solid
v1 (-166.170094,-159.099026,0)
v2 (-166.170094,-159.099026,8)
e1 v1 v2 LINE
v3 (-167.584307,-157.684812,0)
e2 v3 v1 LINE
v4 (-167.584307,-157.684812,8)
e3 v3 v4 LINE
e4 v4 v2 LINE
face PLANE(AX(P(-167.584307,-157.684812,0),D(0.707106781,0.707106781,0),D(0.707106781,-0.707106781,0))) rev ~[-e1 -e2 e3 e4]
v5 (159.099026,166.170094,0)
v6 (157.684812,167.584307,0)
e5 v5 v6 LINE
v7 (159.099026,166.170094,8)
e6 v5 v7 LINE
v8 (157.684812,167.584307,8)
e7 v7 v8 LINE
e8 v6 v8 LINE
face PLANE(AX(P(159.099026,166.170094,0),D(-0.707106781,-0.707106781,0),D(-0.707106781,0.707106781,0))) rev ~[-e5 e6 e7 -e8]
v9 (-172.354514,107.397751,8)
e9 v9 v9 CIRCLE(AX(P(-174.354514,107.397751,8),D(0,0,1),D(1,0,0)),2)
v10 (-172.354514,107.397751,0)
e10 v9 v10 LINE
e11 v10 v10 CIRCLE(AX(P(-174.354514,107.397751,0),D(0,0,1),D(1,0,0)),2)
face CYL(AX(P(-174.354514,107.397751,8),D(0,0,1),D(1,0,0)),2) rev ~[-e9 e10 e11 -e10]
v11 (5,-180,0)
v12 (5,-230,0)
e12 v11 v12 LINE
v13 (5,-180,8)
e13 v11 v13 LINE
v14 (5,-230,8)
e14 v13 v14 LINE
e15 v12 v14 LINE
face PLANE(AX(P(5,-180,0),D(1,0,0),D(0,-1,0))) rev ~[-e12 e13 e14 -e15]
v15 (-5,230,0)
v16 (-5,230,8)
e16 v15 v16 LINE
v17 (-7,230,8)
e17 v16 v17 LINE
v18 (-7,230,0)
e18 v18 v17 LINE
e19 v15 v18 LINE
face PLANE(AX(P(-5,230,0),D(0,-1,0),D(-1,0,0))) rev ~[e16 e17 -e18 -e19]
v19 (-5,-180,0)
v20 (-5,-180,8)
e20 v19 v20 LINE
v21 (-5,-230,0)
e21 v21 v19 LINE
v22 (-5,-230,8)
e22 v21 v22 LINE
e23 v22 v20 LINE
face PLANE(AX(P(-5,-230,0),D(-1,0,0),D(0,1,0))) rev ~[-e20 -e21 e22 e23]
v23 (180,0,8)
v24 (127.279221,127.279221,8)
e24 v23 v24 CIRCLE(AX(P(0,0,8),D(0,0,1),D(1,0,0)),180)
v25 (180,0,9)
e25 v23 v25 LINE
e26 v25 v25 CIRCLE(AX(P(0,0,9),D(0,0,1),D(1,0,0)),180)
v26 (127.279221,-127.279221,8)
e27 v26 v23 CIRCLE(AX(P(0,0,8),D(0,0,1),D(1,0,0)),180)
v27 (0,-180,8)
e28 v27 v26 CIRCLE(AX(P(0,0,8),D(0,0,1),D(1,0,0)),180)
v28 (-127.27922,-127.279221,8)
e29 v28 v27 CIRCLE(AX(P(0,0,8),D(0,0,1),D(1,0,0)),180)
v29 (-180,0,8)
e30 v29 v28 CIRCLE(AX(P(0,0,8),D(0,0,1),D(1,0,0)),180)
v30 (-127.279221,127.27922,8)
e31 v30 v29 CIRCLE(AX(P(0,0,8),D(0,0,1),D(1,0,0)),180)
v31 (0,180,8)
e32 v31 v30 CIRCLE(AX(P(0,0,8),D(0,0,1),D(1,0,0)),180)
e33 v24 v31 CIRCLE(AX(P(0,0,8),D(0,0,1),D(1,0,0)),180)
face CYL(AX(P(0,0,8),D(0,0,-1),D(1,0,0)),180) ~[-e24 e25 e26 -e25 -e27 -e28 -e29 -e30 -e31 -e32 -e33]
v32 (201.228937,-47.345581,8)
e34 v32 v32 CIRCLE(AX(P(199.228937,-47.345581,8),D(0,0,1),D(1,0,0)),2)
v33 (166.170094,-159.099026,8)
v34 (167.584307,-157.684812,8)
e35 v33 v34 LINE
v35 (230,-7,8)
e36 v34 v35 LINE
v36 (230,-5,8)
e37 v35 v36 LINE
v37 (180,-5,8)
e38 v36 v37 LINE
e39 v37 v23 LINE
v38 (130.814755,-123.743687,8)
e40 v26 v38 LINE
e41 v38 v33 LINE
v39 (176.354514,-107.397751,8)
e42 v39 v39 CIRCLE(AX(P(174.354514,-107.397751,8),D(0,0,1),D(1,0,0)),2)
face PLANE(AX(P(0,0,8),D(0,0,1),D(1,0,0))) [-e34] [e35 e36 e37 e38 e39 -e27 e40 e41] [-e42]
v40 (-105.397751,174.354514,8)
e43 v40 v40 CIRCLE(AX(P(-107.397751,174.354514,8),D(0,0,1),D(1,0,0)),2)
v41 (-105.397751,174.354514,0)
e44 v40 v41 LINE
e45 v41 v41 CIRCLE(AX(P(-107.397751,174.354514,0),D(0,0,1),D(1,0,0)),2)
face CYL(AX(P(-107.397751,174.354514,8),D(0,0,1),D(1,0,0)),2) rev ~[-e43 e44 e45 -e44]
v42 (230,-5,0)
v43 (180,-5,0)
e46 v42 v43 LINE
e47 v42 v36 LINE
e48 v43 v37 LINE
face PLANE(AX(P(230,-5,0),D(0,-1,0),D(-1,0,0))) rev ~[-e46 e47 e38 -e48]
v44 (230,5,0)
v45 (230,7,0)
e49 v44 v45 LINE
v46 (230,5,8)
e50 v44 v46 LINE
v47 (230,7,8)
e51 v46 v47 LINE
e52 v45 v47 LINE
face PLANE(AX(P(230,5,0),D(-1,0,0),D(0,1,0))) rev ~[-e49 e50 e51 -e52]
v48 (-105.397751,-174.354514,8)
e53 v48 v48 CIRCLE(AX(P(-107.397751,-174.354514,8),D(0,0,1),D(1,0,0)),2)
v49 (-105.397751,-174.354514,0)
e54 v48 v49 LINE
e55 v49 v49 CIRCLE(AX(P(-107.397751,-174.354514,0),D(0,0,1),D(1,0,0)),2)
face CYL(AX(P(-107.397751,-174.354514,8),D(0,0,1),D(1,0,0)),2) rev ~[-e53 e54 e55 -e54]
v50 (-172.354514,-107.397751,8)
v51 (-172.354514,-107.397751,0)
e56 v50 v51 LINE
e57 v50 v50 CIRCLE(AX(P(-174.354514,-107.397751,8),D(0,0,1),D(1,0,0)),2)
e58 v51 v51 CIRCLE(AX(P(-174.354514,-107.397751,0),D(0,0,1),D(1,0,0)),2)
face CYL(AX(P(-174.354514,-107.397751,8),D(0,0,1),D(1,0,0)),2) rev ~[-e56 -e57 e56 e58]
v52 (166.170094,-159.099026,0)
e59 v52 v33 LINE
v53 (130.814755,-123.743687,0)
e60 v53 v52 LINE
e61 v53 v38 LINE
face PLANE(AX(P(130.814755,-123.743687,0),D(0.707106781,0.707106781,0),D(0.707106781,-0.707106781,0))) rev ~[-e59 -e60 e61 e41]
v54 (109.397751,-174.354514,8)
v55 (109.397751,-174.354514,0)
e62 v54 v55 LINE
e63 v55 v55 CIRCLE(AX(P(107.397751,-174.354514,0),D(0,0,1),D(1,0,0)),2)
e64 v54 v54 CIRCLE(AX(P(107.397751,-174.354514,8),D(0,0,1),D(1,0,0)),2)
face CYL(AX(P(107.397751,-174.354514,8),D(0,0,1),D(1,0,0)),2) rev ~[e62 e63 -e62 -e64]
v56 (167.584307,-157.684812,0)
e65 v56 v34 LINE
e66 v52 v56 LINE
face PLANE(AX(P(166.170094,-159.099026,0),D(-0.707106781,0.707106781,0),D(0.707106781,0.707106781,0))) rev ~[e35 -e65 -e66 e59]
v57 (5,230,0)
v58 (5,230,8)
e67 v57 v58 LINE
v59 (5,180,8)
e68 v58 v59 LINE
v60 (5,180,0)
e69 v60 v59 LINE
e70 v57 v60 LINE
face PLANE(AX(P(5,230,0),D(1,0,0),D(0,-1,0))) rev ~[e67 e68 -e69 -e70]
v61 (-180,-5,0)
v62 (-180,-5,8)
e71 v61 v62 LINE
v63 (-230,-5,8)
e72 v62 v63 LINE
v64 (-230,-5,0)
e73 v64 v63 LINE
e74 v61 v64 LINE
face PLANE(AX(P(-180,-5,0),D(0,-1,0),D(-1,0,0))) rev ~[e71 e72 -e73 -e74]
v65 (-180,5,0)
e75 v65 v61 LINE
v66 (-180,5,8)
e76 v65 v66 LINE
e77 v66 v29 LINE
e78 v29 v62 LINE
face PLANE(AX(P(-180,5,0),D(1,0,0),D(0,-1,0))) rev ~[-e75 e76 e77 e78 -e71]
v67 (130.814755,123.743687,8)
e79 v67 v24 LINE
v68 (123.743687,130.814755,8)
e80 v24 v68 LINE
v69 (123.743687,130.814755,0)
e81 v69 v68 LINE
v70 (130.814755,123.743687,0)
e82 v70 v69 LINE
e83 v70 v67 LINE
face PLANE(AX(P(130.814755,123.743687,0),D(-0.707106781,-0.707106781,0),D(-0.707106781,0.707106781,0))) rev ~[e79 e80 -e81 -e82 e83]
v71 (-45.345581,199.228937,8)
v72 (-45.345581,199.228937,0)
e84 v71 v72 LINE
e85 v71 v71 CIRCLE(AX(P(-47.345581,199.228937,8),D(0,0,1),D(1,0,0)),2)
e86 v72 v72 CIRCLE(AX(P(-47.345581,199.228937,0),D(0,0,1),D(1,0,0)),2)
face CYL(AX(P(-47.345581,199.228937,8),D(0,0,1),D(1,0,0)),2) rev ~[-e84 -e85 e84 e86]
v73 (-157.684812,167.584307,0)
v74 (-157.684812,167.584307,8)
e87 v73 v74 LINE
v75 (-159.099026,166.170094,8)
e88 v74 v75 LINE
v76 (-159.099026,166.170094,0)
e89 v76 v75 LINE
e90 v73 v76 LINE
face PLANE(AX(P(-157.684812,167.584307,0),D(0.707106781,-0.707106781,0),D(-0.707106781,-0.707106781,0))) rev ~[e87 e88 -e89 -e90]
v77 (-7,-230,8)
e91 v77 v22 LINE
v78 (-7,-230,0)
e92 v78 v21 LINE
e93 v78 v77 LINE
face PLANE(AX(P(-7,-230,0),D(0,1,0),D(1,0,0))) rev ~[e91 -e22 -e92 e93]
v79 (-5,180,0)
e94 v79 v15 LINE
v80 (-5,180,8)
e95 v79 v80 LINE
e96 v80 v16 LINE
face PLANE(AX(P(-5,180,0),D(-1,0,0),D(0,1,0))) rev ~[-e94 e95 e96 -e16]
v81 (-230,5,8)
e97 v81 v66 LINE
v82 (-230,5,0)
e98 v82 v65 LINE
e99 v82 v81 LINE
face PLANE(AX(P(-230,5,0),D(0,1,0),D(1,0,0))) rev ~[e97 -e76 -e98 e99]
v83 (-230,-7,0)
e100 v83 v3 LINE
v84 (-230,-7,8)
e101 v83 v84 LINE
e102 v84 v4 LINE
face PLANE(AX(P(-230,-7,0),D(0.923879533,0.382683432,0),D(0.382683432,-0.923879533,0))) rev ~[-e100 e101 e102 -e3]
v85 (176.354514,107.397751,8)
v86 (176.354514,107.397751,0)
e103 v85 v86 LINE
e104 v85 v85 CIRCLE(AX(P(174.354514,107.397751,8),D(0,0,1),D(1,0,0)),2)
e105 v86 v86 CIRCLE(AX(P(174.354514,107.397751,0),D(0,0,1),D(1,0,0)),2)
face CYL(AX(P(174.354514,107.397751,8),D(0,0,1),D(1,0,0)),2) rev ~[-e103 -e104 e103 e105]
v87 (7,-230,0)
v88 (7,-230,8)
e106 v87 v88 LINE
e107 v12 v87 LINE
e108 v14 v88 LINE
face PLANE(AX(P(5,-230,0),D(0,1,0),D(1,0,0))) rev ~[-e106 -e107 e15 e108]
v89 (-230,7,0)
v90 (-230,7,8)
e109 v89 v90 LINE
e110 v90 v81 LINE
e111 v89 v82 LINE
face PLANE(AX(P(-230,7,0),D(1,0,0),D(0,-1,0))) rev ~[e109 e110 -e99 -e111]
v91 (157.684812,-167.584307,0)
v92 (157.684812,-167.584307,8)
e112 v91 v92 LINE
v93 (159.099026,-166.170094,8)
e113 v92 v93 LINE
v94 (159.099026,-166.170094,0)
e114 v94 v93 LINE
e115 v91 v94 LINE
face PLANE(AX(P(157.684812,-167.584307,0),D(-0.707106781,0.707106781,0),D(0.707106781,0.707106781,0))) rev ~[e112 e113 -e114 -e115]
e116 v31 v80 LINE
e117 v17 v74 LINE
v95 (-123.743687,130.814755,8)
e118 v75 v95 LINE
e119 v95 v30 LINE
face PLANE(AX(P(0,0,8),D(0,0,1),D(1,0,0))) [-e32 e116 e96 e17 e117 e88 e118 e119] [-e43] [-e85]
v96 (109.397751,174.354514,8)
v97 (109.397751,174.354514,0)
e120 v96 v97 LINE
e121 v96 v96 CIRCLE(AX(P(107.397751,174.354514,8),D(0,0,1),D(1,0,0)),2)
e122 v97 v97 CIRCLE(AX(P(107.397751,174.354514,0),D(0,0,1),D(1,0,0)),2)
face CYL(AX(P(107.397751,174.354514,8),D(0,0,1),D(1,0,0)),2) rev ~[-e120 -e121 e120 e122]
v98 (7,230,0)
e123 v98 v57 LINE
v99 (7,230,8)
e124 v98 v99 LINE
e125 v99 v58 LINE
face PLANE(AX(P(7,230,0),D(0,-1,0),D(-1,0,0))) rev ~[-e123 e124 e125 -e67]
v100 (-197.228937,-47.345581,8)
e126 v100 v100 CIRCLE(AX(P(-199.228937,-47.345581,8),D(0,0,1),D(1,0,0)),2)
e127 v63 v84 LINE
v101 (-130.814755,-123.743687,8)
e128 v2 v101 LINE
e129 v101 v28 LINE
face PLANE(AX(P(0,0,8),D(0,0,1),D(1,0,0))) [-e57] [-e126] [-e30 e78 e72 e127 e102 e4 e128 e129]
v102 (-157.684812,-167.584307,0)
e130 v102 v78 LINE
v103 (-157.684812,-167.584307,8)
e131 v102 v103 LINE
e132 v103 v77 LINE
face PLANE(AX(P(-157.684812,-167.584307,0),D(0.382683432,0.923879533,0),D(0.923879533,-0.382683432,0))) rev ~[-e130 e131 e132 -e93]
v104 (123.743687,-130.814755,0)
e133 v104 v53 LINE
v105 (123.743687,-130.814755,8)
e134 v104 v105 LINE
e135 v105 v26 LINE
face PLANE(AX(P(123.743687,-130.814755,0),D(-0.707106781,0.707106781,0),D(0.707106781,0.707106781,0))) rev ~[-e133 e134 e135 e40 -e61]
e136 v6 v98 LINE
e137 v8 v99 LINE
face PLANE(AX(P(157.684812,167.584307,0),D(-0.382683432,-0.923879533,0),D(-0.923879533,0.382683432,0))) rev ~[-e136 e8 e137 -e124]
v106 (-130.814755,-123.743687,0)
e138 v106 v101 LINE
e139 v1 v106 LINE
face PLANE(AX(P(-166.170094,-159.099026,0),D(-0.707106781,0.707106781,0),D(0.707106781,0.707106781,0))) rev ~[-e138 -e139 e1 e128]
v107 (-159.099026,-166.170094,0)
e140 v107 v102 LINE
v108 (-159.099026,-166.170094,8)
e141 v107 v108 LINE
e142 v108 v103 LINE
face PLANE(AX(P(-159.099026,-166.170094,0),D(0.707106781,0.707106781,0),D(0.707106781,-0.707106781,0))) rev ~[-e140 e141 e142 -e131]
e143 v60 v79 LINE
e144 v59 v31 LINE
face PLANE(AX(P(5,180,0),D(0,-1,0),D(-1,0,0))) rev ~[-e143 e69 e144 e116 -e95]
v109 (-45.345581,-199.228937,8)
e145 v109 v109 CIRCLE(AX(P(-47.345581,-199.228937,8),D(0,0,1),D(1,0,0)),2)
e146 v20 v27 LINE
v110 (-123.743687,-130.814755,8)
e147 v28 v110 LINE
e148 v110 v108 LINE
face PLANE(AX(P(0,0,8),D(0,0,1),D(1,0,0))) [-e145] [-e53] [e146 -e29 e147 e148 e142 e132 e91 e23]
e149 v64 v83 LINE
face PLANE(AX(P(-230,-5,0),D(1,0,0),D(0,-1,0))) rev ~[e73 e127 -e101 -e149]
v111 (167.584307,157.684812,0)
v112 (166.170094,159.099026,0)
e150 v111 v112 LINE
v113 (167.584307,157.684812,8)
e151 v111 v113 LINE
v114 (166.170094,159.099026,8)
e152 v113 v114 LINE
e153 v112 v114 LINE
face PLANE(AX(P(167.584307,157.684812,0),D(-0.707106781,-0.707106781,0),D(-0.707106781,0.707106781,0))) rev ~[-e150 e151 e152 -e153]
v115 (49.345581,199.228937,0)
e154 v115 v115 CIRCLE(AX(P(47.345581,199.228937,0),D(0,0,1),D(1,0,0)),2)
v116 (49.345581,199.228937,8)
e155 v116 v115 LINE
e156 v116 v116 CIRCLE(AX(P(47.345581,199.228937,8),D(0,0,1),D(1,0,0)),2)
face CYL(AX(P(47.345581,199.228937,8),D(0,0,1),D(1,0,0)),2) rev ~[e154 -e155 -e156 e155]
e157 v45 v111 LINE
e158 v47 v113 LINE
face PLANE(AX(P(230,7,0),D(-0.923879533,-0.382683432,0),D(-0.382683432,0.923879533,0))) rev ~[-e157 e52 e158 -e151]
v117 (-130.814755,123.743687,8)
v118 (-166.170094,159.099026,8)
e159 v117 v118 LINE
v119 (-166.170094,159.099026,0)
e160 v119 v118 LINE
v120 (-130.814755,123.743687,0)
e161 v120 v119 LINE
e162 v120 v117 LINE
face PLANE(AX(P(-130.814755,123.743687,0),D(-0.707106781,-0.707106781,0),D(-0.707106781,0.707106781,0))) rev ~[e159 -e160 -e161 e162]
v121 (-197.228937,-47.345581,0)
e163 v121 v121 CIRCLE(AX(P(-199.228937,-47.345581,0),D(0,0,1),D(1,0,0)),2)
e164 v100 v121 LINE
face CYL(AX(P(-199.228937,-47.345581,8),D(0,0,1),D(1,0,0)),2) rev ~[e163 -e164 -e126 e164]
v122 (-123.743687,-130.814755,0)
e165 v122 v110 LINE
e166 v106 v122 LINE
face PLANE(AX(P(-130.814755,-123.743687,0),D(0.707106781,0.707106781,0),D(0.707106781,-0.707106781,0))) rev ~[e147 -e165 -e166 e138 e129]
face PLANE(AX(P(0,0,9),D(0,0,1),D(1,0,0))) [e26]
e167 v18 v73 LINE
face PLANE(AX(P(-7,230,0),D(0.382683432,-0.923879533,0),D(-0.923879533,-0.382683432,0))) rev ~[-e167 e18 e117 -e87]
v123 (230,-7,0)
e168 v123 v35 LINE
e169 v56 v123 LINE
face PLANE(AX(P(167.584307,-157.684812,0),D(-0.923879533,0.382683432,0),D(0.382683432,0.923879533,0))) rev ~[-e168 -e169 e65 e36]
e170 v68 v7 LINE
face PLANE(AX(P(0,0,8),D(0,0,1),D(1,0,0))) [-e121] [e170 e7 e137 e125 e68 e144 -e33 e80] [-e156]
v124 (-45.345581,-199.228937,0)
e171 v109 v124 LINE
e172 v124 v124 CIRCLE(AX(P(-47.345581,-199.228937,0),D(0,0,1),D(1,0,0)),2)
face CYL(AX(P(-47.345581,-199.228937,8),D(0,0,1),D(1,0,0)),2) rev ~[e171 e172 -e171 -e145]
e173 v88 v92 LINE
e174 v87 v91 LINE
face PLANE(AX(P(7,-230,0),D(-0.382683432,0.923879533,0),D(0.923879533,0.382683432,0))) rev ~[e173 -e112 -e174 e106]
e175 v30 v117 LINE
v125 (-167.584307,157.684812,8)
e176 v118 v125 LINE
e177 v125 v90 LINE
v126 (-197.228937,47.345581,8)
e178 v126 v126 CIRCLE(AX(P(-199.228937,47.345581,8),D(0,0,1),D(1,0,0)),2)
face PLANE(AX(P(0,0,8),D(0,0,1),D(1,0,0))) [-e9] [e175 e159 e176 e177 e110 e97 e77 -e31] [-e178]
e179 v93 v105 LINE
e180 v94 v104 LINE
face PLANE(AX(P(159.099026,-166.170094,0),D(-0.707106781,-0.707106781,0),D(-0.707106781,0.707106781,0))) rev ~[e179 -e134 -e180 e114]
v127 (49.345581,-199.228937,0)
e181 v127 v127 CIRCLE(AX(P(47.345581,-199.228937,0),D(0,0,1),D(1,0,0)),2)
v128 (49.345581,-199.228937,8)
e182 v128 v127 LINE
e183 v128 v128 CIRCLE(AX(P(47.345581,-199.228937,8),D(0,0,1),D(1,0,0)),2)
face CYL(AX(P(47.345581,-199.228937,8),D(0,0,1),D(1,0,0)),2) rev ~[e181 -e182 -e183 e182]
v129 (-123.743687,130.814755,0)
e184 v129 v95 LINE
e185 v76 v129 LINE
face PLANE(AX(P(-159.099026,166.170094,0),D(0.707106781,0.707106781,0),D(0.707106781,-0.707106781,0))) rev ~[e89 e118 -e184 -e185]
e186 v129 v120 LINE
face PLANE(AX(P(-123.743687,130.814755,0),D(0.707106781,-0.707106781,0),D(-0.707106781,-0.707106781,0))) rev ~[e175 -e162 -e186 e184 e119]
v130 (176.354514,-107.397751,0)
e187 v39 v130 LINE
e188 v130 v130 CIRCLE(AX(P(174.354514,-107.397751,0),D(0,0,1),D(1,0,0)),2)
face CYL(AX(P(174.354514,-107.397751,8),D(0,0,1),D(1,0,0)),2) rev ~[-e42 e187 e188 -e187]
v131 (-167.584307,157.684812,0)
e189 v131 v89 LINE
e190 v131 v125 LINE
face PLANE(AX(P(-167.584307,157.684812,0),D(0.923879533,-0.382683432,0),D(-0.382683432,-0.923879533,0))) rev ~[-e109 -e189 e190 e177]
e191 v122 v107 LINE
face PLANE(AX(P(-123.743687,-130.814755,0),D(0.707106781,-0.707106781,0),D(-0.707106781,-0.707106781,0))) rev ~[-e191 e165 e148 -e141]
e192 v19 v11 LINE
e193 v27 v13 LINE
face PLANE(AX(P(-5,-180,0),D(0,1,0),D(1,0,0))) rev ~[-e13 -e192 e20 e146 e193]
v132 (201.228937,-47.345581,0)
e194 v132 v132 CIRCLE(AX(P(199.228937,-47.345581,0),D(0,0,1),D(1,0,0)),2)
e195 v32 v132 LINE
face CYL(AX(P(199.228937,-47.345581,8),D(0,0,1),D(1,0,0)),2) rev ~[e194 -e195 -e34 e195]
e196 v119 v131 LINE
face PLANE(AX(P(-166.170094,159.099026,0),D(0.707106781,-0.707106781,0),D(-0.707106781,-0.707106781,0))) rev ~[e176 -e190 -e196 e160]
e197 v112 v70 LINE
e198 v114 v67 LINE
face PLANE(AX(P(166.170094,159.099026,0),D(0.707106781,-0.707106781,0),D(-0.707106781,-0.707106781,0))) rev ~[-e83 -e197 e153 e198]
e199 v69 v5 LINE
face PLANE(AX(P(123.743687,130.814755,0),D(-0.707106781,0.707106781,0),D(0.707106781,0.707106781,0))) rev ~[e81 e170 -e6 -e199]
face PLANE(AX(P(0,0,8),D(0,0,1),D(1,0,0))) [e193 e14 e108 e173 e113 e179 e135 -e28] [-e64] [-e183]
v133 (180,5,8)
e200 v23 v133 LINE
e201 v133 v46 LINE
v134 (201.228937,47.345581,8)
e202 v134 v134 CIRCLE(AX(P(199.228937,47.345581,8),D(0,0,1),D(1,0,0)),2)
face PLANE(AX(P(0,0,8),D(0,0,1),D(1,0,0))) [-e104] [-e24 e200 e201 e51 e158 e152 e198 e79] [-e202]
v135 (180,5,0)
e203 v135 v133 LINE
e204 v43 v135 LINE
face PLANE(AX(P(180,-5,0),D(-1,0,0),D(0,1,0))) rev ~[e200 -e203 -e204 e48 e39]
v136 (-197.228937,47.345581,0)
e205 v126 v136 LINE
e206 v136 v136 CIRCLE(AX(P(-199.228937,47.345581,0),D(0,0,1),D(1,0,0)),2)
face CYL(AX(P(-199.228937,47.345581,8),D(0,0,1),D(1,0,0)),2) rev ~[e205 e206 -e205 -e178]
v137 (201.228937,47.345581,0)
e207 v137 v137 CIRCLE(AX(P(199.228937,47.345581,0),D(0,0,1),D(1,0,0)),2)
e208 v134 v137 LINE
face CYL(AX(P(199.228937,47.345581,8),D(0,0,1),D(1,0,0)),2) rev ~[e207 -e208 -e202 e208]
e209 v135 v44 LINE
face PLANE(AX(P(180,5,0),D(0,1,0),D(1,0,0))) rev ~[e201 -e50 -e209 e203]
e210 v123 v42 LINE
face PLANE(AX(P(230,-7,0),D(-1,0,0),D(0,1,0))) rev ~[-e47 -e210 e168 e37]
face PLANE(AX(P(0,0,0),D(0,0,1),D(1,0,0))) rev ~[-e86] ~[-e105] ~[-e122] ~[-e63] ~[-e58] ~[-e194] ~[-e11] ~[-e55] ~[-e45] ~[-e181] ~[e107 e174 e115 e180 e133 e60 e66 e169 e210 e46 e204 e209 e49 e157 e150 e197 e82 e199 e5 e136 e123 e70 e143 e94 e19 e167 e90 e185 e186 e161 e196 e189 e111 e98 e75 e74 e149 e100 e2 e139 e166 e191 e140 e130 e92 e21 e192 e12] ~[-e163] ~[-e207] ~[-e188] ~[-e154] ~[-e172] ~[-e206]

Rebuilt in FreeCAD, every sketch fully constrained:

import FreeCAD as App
import Part
import Sketcher
Q = App.Units.Quantity

doc = App.newDocument("Part")
body = doc.addObject("PartDesign::Body", "Body")

# Sketch on XY plane
sketch1 = doc.addObject("Sketcher::SketchObject", "Sketch")
body.addObject(sketch1)
sketch1.AttachmentSupport = (doc.XY_Plane, [""])
sketch1.MapMode = "FlatFace"
sketch1.addGeometry([
    Part.LineSegment(App.Vector(5, 230, 0), App.Vector(5, 180, 0)),  # 0
    Part.LineSegment(App.Vector(5, 180, 0), App.Vector(-5, 180, 0)),  # 1
    Part.LineSegment(App.Vector(-5, 180, 0), App.Vector(-5, 230, 0)),  # 2
    Part.LineSegment(App.Vector(-5, 230, 0), App.Vector(-7, 230, 0)),  # 3
    Part.LineSegment(App.Vector(-7, 230, 0), App.Vector(-157.7, 167.6, 0)),  # 4
    Part.LineSegment(App.Vector(-157.7, 167.6, 0), App.Vector(-159.1, 166.2, 0)),  # 5
    Part.LineSegment(App.Vector(-159.1, 166.2, 0), App.Vector(-123.7, 130.8, 0)),  # 6
    Part.LineSegment(App.Vector(-123.7, 130.8, 0), App.Vector(-130.8, 123.7, 0)),  # 7
    Part.LineSegment(App.Vector(-130.8, 123.7, 0), App.Vector(-166.2, 159.1, 0)),  # 8
    Part.LineSegment(App.Vector(-166.2, 159.1, 0), App.Vector(-167.6, 157.7, 0)),  # 9
    Part.LineSegment(App.Vector(-167.6, 157.7, 0), App.Vector(-230, 7, 0)),  # 10
    Part.LineSegment(App.Vector(-230, 7, 0), App.Vector(-230, 5, 0)),  # 11
    Part.LineSegment(App.Vector(-230, 5, 0), App.Vector(-180, 5, 0)),  # 12
    Part.LineSegment(App.Vector(-180, 5, 0), App.Vector(-180, -5, 0)),  # 13
    Part.LineSegment(App.Vector(-180, -5, 0), App.Vector(-230, -5, 0)),  # 14
    Part.LineSegment(App.Vector(-230, -5, 0), App.Vector(-230, -7, 0)),  # 15
    Part.LineSegment(App.Vector(-230, -7, 0), App.Vector(-167.6, -157.7, 0)),  # 16
    Part.LineSegment(App.Vector(-167.6, -157.7, 0), App.Vector(-166.2, -159.1, 0)),  # 17
    Part.LineSegment(App.Vector(-166.2, -159.1, 0), App.Vector(-130.8, -123.7, 0)),  # 18
    Part.LineSegment(App.Vector(-130.8, -123.7, 0), App.Vector(-123.7, -130.8, 0)),  # 19
    Part.LineSegment(App.Vector(-123.7, -130.8, 0), App.Vector(-159.1, -166.2, 0)),  # 20
    Part.LineSegment(App.Vector(-159.1, -166.2, 0), App.Vector(-157.7, -167.6, 0)),  # 21
    Part.LineSegment(App.Vector(-157.7, -167.6, 0), App.Vector(-7, -230, 0)),  # 22
    Part.LineSegment(App.Vector(-7, -230, 0), App.Vector(-5, -230, 0)),  # 23
    Part.LineSegment(App.Vector(-5, -230, 0), App.Vector(-5, -180, 0)),  # 24
    Part.LineSegment(App.Vector(-5, -180, 0), App.Vector(5, -180, 0)),  # 25
    Part.LineSegment(App.Vector(5, -180, 0), App.Vector(5, -230, 0)),  # 26
    Part.LineSegment(App.Vector(5, -230, 0), App.Vector(7, -230, 0)),  # 27
    Part.LineSegment(App.Vector(7, -230, 0), App.Vector(157.7, -167.6, 0)),  # 28
    Part.LineSegment(App.Vector(157.7, -167.6, 0), App.Vector(159.1, -166.2, 0)),  # 29
    Part.LineSegment(App.Vector(159.1, -166.2, 0), App.Vector(123.7, -130.8, 0)),  # 30
    Part.LineSegment(App.Vector(123.7, -130.8, 0), App.Vector(130.8, -123.7, 0)),  # 31
    Part.LineSegment(App.Vector(130.8, -123.7, 0), App.Vector(166.2, -159.1, 0)),  # 32
    Part.LineSegment(App.Vector(166.2, -159.1, 0), App.Vector(167.6, -157.7, 0)),  # 33
    Part.LineSegment(App.Vector(167.6, -157.7, 0), App.Vector(230, -7, 0)),  # 34
    Part.LineSegment(App.Vector(230, -7, 0), App.Vector(230, -5, 0)),  # 35
    Part.LineSegment(App.Vector(230, -5, 0), App.Vector(180, -5, 0)),  # 36
    Part.LineSegment(App.Vector(180, -5, 0), App.Vector(180, 5, 0)),  # 37
    Part.LineSegment(App.Vector(180, 5, 0), App.Vector(230, 5, 0)),  # 38
    Part.LineSegment(App.Vector(230, 5, 0), App.Vector(230, 7, 0)),  # 39
    Part.LineSegment(App.Vector(230, 7, 0), App.Vector(167.6, 157.7, 0)),  # 40
    Part.LineSegment(App.Vector(167.6, 157.7, 0), App.Vector(166.2, 159.1, 0)),  # 41
    Part.LineSegment(App.Vector(166.2, 159.1, 0), App.Vector(130.8, 123.7, 0)),  # 42
    Part.LineSegment(App.Vector(130.8, 123.7, 0), App.Vector(123.7, 130.8, 0)),  # 43
    Part.LineSegment(App.Vector(123.7, 130.8, 0), App.Vector(159.1, 166.2, 0)),  # 44
    Part.LineSegment(App.Vector(159.1, 166.2, 0), App.Vector(157.7, 167.6, 0)),  # 45
    Part.LineSegment(App.Vector(157.7, 167.6, 0), App.Vector(7, 230, 0)),  # 46
    Part.LineSegment(App.Vector(7, 230, 0), App.Vector(5, 230, 0)),  # 47
], False)
sketch1.addConstraint([
    Sketcher.Constraint("Coincident", 0, 2, 1, 1),
    Sketcher.Constraint("Coincident", 1, 2, 2, 1),
    Sketcher.Constraint("Coincident", 2, 2, 3, 1),
    Sketcher.Constraint("Coincident", 3, 2, 4, 1),
    Sketcher.Constraint("Coincident", 4, 2, 5, 1),
    Sketcher.Constraint("Coincident", 5, 2, 6, 1),
    Sketcher.Constraint("Coincident", 6, 2, 7, 1),
    Sketcher.Constraint("Coincident", 7, 2, 8, 1),
    Sketcher.Constraint("Coincident", 8, 2, 9, 1),
    Sketcher.Constraint("Coincident", 9, 2, 10, 1),
    Sketcher.Constraint("Coincident", 10, 2, 11, 1),
    Sketcher.Constraint("Coincident", 11, 2, 12, 1),
    Sketcher.Constraint("Coincident", 12, 2, 13, 1),
    Sketcher.Constraint("Coincident", 13, 2, 14, 1),
    Sketcher.Constraint("Coincident", 14, 2, 15, 1),
    Sketcher.Constraint("Coincident", 15, 2, 16, 1),
    Sketcher.Constraint("Coincident", 16, 2, 17, 1),
    Sketcher.Constraint("Coincident", 17, 2, 18, 1),
    Sketcher.Constraint("Coincident", 18, 2, 19, 1),
    Sketcher.Constraint("Coincident", 19, 2, 20, 1),
    Sketcher.Constraint("Coincident", 20, 2, 21, 1),
    Sketcher.Constraint("Coincident", 21, 2, 22, 1),
    Sketcher.Constraint("Coincident", 22, 2, 23, 1),
    Sketcher.Constraint("Coincident", 23, 2, 24, 1),
    Sketcher.Constraint("Coincident", 24, 2, 25, 1),
    Sketcher.Constraint("Coincident", 25, 2, 26, 1),
    Sketcher.Constraint("Coincident", 26, 2, 27, 1),
    Sketcher.Constraint("Coincident", 27, 2, 28, 1),
    Sketcher.Constraint("Coincident", 28, 2, 29, 1),
    Sketcher.Constraint("Coincident", 29, 2, 30, 1),
    Sketcher.Constraint("Coincident", 30, 2, 31, 1),
    Sketcher.Constraint("Coincident", 31, 2, 32, 1),
    Sketcher.Constraint("Coincident", 32, 2, 33, 1),
    Sketcher.Constraint("Coincident", 33, 2, 34, 1),
    Sketcher.Constraint("Coincident", 34, 2, 35, 1),
    Sketcher.Constraint("Coincident", 35, 2, 36, 1),
    Sketcher.Constraint("Coincident", 36, 2, 37, 1),
    Sketcher.Constraint("Coincident", 37, 2, 38, 1),
    Sketcher.Constraint("Coincident", 38, 2, 39, 1),
    Sketcher.Constraint("Coincident", 39, 2, 40, 1),
    Sketcher.Constraint("Coincident", 40, 2, 41, 1),
    Sketcher.Constraint("Coincident", 41, 2, 42, 1),
    Sketcher.Constraint("Coincident", 42, 2, 43, 1),
    Sketcher.Constraint("Coincident", 43, 2, 44, 1),
    Sketcher.Constraint("Coincident", 44, 2, 45, 1),
    Sketcher.Constraint("Coincident", 45, 2, 46, 1),
    Sketcher.Constraint("Coincident", 46, 2, 47, 1),
    Sketcher.Constraint("Coincident", 47, 2, 0, 1),
    Sketcher.Constraint("Vertical", 0),
    Sketcher.Constraint("Horizontal", 1),
    Sketcher.Constraint("Vertical", 2),
    Sketcher.Constraint("Horizontal", 3),
    Sketcher.Constraint("Vertical", 11),
    Sketcher.Constraint("Horizontal", 12),
    Sketcher.Constraint("Vertical", 13),
    Sketcher.Constraint("Horizontal", 14),
    Sketcher.Constraint("Vertical", 15),
    Sketcher.Constraint("Horizontal", 23),
    Sketcher.Constraint("Vertical", 24),
    Sketcher.Constraint("Horizontal", 25),
    Sketcher.Constraint("Vertical", 26),
    Sketcher.Constraint("Horizontal", 27),
    Sketcher.Constraint("Vertical", 35),
    Sketcher.Constraint("Horizontal", 36),
    Sketcher.Constraint("Vertical", 37),
    Sketcher.Constraint("Horizontal", 38),
    Sketcher.Constraint("Vertical", 39),
    Sketcher.Constraint("Horizontal", 47),
    Sketcher.Constraint("Symmetric", 0, 2, 24, 2, -1, 1),
    Sketcher.Constraint("Symmetric", 2, 2, 26, 2, -1, 1),
    Sketcher.Constraint("Symmetric", 4, 2, 28, 2, -1, 1),
    Sketcher.Constraint("Symmetric", 5, 2, 29, 2, -1, 1),
    Sketcher.Constraint("Symmetric", 6, 2, 30, 2, -1, 1),
    Sketcher.Constraint("Symmetric", 7, 2, 31, 2, -1, 1),
    Sketcher.Constraint("Symmetric", 8, 2, 32, 2, -1, 1),
    Sketcher.Constraint("Symmetric", 9, 2, 33, 2, -1, 1),
    Sketcher.Constraint("Symmetric", 10, 2, 34, 2, -1, 1),
    Sketcher.Constraint("Symmetric", 12, 2, 36, 2, -1, 1),
    Sketcher.Constraint("Symmetric", 14, 2, 38, 2, -1, 1),
    Sketcher.Constraint("Symmetric", 16, 2, 40, 2, -1, 1),
    Sketcher.Constraint("Symmetric", 17, 2, 41, 2, -1, 1),
    Sketcher.Constraint("Symmetric", 18, 2, 42, 2, -1, 1),
    Sketcher.Constraint("Symmetric", 19, 2, 43, 2, -1, 1),
    Sketcher.Constraint("Symmetric", 20, 2, 44, 2, -1, 1),
    Sketcher.Constraint("Symmetric", 21, 2, 45, 2, -1, 1),
    Sketcher.Constraint("Symmetric", 22, 2, 46, 2, -1, 1),
    Sketcher.Constraint("Symmetric", 23, 2, 26, 2, -2),
    Sketcher.Constraint("Symmetric", 21, 2, 28, 2, -2),
    Sketcher.Constraint("Symmetric", 20, 2, 29, 2, -2),
    Sketcher.Constraint("Symmetric", 19, 2, 30, 2, -2),
    Sketcher.Constraint("Symmetric", 18, 2, 31, 2, -2),
    Sketcher.Constraint("Symmetric", 17, 2, 32, 2, -2),
    Sketcher.Constraint("Symmetric", 16, 2, 33, 2, -2),
    Sketcher.Constraint("Symmetric", 15, 2, 34, 2, -2),
    Sketcher.Constraint("Perpendicular", 5, 6),
    Sketcher.Constraint("Perpendicular", 6, 7),
    Sketcher.Constraint("Perpendicular", 7, 8),
    Sketcher.Constraint("Perpendicular", 8, 9),
    Sketcher.Constraint("Perpendicular", 4, 16),
    Sketcher.Constraint("Perpendicular", 9, 17),
    Sketcher.Constraint("Perpendicular", 10, 22),
    Sketcher.Constraint("Perpendicular", 16, 28),
    Sketcher.Constraint("Perpendicular", 28, 40),
    Sketcher.Constraint("Horizontal", 14, 2, 35, 2),
    Sketcher.Constraint("Equal", 38, 0),
    Sketcher.Constraint("Equal", 47, 11),
    Sketcher.Constraint("Equal", 25, 13),
    Sketcher.Constraint("Equal", 6, 8),
    Sketcher.Constraint("Equal", 5, 9),
    Sketcher.Constraint("Equal", 4, 10),
    Sketcher.Constraint("DistanceX", 1, 2, 1, 1, 10.0),
    Sketcher.Constraint("DistanceX", 3, 2, 3, 1, 2.0),
    Sketcher.Constraint("DistanceX", 12, 1, 12, 2, 50.0),
    Sketcher.Constraint("Distance", 5, 2.0),
    Sketcher.Constraint("Distance", 6, 50.0),
    Sketcher.Constraint("Distance", 7, 10.0),
    Sketcher.Constraint("DistanceY", -1, 1, 0, 2, 180.0),
    Sketcher.Constraint("Angle", 4, Q("-157.5 deg")),
])
pad1 = doc.addObject("PartDesign::Pad", "Pad")
body.addObject(pad1)
pad1.Profile = sketch1
pad1.Length = 8

# Sketch on XY plane
sketch2 = doc.addObject("Sketcher::SketchObject", "Sketch001")
body.addObject(sketch2)
sketch2.AttachmentSupport = (doc.XY_Plane, [""])
sketch2.MapMode = "FlatFace"
sketch2.AttachmentOffset = App.Placement(App.Vector(0, 0, 8), App.Rotation())
sketch2.addGeometry(Part.Circle(App.Vector(0, 0, 0), App.Vector(0, 0, 1), 180), False)
sketch2.addConstraint([
    Sketcher.Constraint("Coincident", 0, 3, -1, 1),
    Sketcher.Constraint("Diameter", 0, 360.0),
])
pad2 = doc.addObject("PartDesign::Pad", "Pad001")
body.addObject(pad2)
pad2.Profile = sketch2
pad2.Length = 1

# Sketch on XY plane
sketch3 = doc.addObject("Sketcher::SketchObject", "Sketch002")
body.addObject(sketch3)
sketch3.AttachmentSupport = (doc.XY_Plane, [""])
sketch3.MapMode = "FlatFace"
sketch3.AttachmentOffset = App.Placement(App.Vector(0, 0, 8), App.Rotation())
sketch3.addGeometry(Part.Circle(App.Vector(107.4, 174.4, 0), App.Vector(0, 0, 1), 2), False)
sketch3.addConstraint([
    Sketcher.Constraint("Diameter", 0, 4.0),
    Sketcher.Constraint("DistanceX", -1, 1, 0, 3, 107.397751),
    Sketcher.Constraint("DistanceY", -1, 1, 0, 3, 174.354514),
])
pocket1 = doc.addObject("PartDesign::Pocket", "Pocket")
body.addObject(pocket1)
pocket1.Profile = sketch3
pocket1.Type = "UpToFirst"

# Sketch on XY plane
sketch4 = doc.addObject("Sketcher::SketchObject", "Sketch003")
body.addObject(sketch4)
sketch4.AttachmentSupport = (doc.XY_Plane, [""])
sketch4.MapMode = "FlatFace"
sketch4.AttachmentOffset = App.Placement(App.Vector(0, 0, 8), App.Rotation())
sketch4.addGeometry(Part.Circle(App.Vector(47.3, 199.2, 0), App.Vector(0, 0, 1), 2), False)
sketch4.addConstraint([
    Sketcher.Constraint("Diameter", 0, 4.0),
    Sketcher.Constraint("DistanceX", -1, 1, 0, 3, 47.345581),
    Sketcher.Constraint("DistanceY", -1, 1, 0, 3, 199.228937),
])
pocket2 = doc.addObject("PartDesign::Pocket", "Pocket001")
body.addObject(pocket2)
pocket2.Profile = sketch4
pocket2.Type = "UpToFirst"

# Sketch on XY plane
sketch5 = doc.addObject("Sketcher::SketchObject", "Sketch004")
body.addObject(sketch5)
sketch5.AttachmentSupport = (doc.XY_Plane, [""])
sketch5.MapMode = "FlatFace"
sketch5.AttachmentOffset = App.Placement(App.Vector(0, 0, 8), App.Rotation())
sketch5.addGeometry(Part.Circle(App.Vector(199.2, 47.3, 0), App.Vector(0, 0, 1), 2), False)
sketch5.addConstraint([
    Sketcher.Constraint("Diameter", 0, 4.0),
    Sketcher.Constraint("DistanceY", -1, 1, 0, 3, 47.345581),
    Sketcher.Constraint("DistanceX", -1, 1, 0, 3, 199.228937),
])
pocket3 = doc.addObject("PartDesign::Pocket", "Pocket002")
body.addObject(pocket3)
pocket3.Profile = sketch5
pocket3.Type = "UpToFirst"

# Sketch on XY plane
sketch6 = doc.addObject("Sketcher::SketchObject", "Sketch005")
body.addObject(sketch6)
sketch6.AttachmentSupport = (doc.XY_Plane, [""])
sketch6.MapMode = "FlatFace"
sketch6.AttachmentOffset = App.Placement(App.Vector(0, 0, 8), App.Rotation())
sketch6.addGeometry(Part.Circle(App.Vector(174.4, 107.4, 0), App.Vector(0, 0, 1), 2), False)
sketch6.addConstraint([
    Sketcher.Constraint("Diameter", 0, 4.0),
    Sketcher.Constraint("DistanceY", -1, 1, 0, 3, 107.397751),
    Sketcher.Constraint("DistanceX", -1, 1, 0, 3, 174.354514),
])
pocket4 = doc.addObject("PartDesign::Pocket", "Pocket003")
body.addObject(pocket4)
pocket4.Profile = sketch6
pocket4.Type = "UpToFirst"

# Sketch on XY plane
sketch7 = doc.addObject("Sketcher::SketchObject", "Sketch006")
body.addObject(sketch7)
sketch7.AttachmentSupport = (doc.XY_Plane, [""])
sketch7.MapMode = "FlatFace"
sketch7.AttachmentOffset = App.Placement(App.Vector(0, 0, 8), App.Rotation())
sketch7.addGeometry(Part.Circle(App.Vector(174.4, -107.4, 0), App.Vector(0, 0, 1), 2), False)
sketch7.addConstraint([
    Sketcher.Constraint("Diameter", 0, 4.0),
    Sketcher.Constraint("DistanceY", 0, 3, -1, 1, 107.397751),
    Sketcher.Constraint("DistanceX", -1, 1, 0, 3, 174.354514),
])
pocket5 = doc.addObject("PartDesign::Pocket", "Pocket004")
body.addObject(pocket5)
pocket5.Profile = sketch7
pocket5.Type = "UpToFirst"

# Sketch on XY plane
sketch8 = doc.addObject("Sketcher::SketchObject", "Sketch007")
body.addObject(sketch8)
sketch8.AttachmentSupport = (doc.XY_Plane, [""])
sketch8.MapMode = "FlatFace"
sketch8.AttachmentOffset = App.Placement(App.Vector(0, 0, 8), App.Rotation())
sketch8.addGeometry(Part.Circle(App.Vector(199.2, -47.3, 0), App.Vector(0, 0, 1), 2), False)
sketch8.addConstraint([
    Sketcher.Constraint("Diameter", 0, 4.0),
    Sketcher.Constraint("DistanceY", 0, 3, -1, 1, 47.345581),
    Sketcher.Constraint("DistanceX", -1, 1, 0, 3, 199.228937),
])
pocket6 = doc.addObject("PartDesign::Pocket", "Pocket005")
body.addObject(pocket6)
pocket6.Profile = sketch8
pocket6.Type = "UpToFirst"

# Sketch on XY plane
sketch9 = doc.addObject("Sketcher::SketchObject", "Sketch008")
body.addObject(sketch9)
sketch9.AttachmentSupport = (doc.XY_Plane, [""])
sketch9.MapMode = "FlatFace"
sketch9.AttachmentOffset = App.Placement(App.Vector(0, 0, 8), App.Rotation())
sketch9.addGeometry(Part.Circle(App.Vector(47.3, -199.2, 0), App.Vector(0, 0, 1), 2), False)
sketch9.addConstraint([
    Sketcher.Constraint("Diameter", 0, 4.0),
    Sketcher.Constraint("DistanceX", -1, 1, 0, 3, 47.345581),
    Sketcher.Constraint("DistanceY", 0, 3, -1, 1, 199.228937),
])
pocket7 = doc.addObject("PartDesign::Pocket", "Pocket006")
body.addObject(pocket7)
pocket7.Profile = sketch9
pocket7.Type = "UpToFirst"

# Sketch on XY plane
sketch10 = doc.addObject("Sketcher::SketchObject", "Sketch009")
body.addObject(sketch10)
sketch10.AttachmentSupport = (doc.XY_Plane, [""])
sketch10.MapMode = "FlatFace"
sketch10.AttachmentOffset = App.Placement(App.Vector(0, 0, 8), App.Rotation())
sketch10.addGeometry(Part.Circle(App.Vector(107.4, -174.4, 0), App.Vector(0, 0, 1), 2), False)
sketch10.addConstraint([
    Sketcher.Constraint("Diameter", 0, 4.0),
    Sketcher.Constraint("DistanceX", -1, 1, 0, 3, 107.397751),
    Sketcher.Constraint("DistanceY", 0, 3, -1, 1, 174.354514),
])
pocket8 = doc.addObject("PartDesign::Pocket", "Pocket007")
body.addObject(pocket8)
pocket8.Profile = sketch10
pocket8.Type = "UpToFirst"

# Sketch on XY plane
sketch11 = doc.addObject("Sketcher::SketchObject", "Sketch010")
body.addObject(sketch11)
sketch11.AttachmentSupport = (doc.XY_Plane, [""])
sketch11.MapMode = "FlatFace"
sketch11.AttachmentOffset = App.Placement(App.Vector(0, 0, 8), App.Rotation())
sketch11.addGeometry(Part.Circle(App.Vector(-107.4, -174.4, 0), App.Vector(0, 0, 1), 2), False)
sketch11.addConstraint([
    Sketcher.Constraint("Diameter", 0, 4.0),
    Sketcher.Constraint("DistanceX", 0, 3, -1, 1, 107.397751),
    Sketcher.Constraint("DistanceY", 0, 3, -1, 1, 174.354514),
])
pocket9 = doc.addObject("PartDesign::Pocket", "Pocket008")
body.addObject(pocket9)
pocket9.Profile = sketch11
pocket9.Type = "UpToFirst"

# Sketch on XY plane
sketch12 = doc.addObject("Sketcher::SketchObject", "Sketch011")
body.addObject(sketch12)
sketch12.AttachmentSupport = (doc.XY_Plane, [""])
sketch12.MapMode = "FlatFace"
sketch12.AttachmentOffset = App.Placement(App.Vector(0, 0, 8), App.Rotation())
sketch12.addGeometry(Part.Circle(App.Vector(-47.3, -199.2, 0), App.Vector(0, 0, 1), 2), False)
sketch12.addConstraint([
    Sketcher.Constraint("Diameter", 0, 4.0),
    Sketcher.Constraint("DistanceX", 0, 3, -1, 1, 47.345581),
    Sketcher.Constraint("DistanceY", 0, 3, -1, 1, 199.228937),
])
pocket10 = doc.addObject("PartDesign::Pocket", "Pocket009")
body.addObject(pocket10)
pocket10.Profile = sketch12
pocket10.Type = "UpToFirst"

# Sketch on XY plane
sketch13 = doc.addObject("Sketcher::SketchObject", "Sketch012")
body.addObject(sketch13)
sketch13.AttachmentSupport = (doc.XY_Plane, [""])
sketch13.MapMode = "FlatFace"
sketch13.AttachmentOffset = App.Placement(App.Vector(0, 0, 8), App.Rotation())
sketch13.addGeometry(Part.Circle(App.Vector(-199.2, -47.3, 0), App.Vector(0, 0, 1), 2), False)
sketch13.addConstraint([
    Sketcher.Constraint("Diameter", 0, 4.0),
    Sketcher.Constraint("DistanceY", 0, 3, -1, 1, 47.345581),
    Sketcher.Constraint("DistanceX", 0, 3, -1, 1, 199.228937),
])
pocket11 = doc.addObject("PartDesign::Pocket", "Pocket010")
body.addObject(pocket11)
pocket11.Profile = sketch13
pocket11.Type = "UpToFirst"

# Sketch on XY plane
sketch14 = doc.addObject("Sketcher::SketchObject", "Sketch013")
body.addObject(sketch14)
sketch14.AttachmentSupport = (doc.XY_Plane, [""])
sketch14.MapMode = "FlatFace"
sketch14.AttachmentOffset = App.Placement(App.Vector(0, 0, 8), App.Rotation())
sketch14.addGeometry(Part.Circle(App.Vector(-174.4, -107.4, 0), App.Vector(0, 0, 1), 2), False)
sketch14.addConstraint([
    Sketcher.Constraint("Diameter", 0, 4.0),
    Sketcher.Constraint("DistanceY", 0, 3, -1, 1, 107.397751),
    Sketcher.Constraint("DistanceX", 0, 3, -1, 1, 174.354514),
])
pocket12 = doc.addObject("PartDesign::Pocket", "Pocket011")
body.addObject(pocket12)
pocket12.Profile = sketch14
pocket12.Type = "UpToFirst"

# Sketch on XY plane
sketch15 = doc.addObject("Sketcher::SketchObject", "Sketch014")
body.addObject(sketch15)
sketch15.AttachmentSupport = (doc.XY_Plane, [""])
sketch15.MapMode = "FlatFace"
sketch15.AttachmentOffset = App.Placement(App.Vector(0, 0, 8), App.Rotation())
sketch15.addGeometry(Part.Circle(App.Vector(-174.4, 107.4, 0), App.Vector(0, 0, 1), 2), False)
sketch15.addConstraint([
    Sketcher.Constraint("Diameter", 0, 4.0),
    Sketcher.Constraint("DistanceY", -1, 1, 0, 3, 107.397751),
    Sketcher.Constraint("DistanceX", 0, 3, -1, 1, 174.354514),
])
pocket13 = doc.addObject("PartDesign::Pocket", "Pocket012")
body.addObject(pocket13)
pocket13.Profile = sketch15
pocket13.Type = "UpToFirst"

# Sketch on XY plane
sketch16 = doc.addObject("Sketcher::SketchObject", "Sketch015")
body.addObject(sketch16)
sketch16.AttachmentSupport = (doc.XY_Plane, [""])
sketch16.MapMode = "FlatFace"
sketch16.AttachmentOffset = App.Placement(App.Vector(0, 0, 8), App.Rotation())
sketch16.addGeometry(Part.Circle(App.Vector(-199.2, 47.3, 0), App.Vector(0, 0, 1), 2), False)
sketch16.addConstraint([
    Sketcher.Constraint("Diameter", 0, 4.0),
    Sketcher.Constraint("DistanceY", -1, 1, 0, 3, 47.345581),
    Sketcher.Constraint("DistanceX", 0, 3, -1, 1, 199.228937),
])
pocket14 = doc.addObject("PartDesign::Pocket", "Pocket013")
body.addObject(pocket14)
pocket14.Profile = sketch16
pocket14.Type = "UpToFirst"

# Sketch on XY plane
sketch17 = doc.addObject("Sketcher::SketchObject", "Sketch016")
body.addObject(sketch17)
sketch17.AttachmentSupport = (doc.XY_Plane, [""])
sketch17.MapMode = "FlatFace"
sketch17.AttachmentOffset = App.Placement(App.Vector(0, 0, 8), App.Rotation())
sketch17.addGeometry(Part.Circle(App.Vector(-47.3, 199.2, 0), App.Vector(0, 0, 1), 2), False)
sketch17.addConstraint([
    Sketcher.Constraint("Diameter", 0, 4.0),
    Sketcher.Constraint("DistanceX", 0, 3, -1, 1, 47.345581),
    Sketcher.Constraint("DistanceY", -1, 1, 0, 3, 199.228937),
])
pocket15 = doc.addObject("PartDesign::Pocket", "Pocket014")
body.addObject(pocket15)
pocket15.Profile = sketch17
pocket15.Type = "UpToFirst"

# Sketch on XY plane
sketch18 = doc.addObject("Sketcher::SketchObject", "Sketch017")
body.addObject(sketch18)
sketch18.AttachmentSupport = (doc.XY_Plane, [""])
sketch18.MapMode = "FlatFace"
sketch18.AttachmentOffset = App.Placement(App.Vector(0, 0, 8), App.Rotation())
sketch18.addGeometry(Part.Circle(App.Vector(-107.4, 174.4, 0), App.Vector(0, 0, 1), 2), False)
sketch18.addConstraint([
    Sketcher.Constraint("Diameter", 0, 4.0),
    Sketcher.Constraint("DistanceX", 0, 3, -1, 1, 107.397751),
    Sketcher.Constraint("DistanceY", -1, 1, 0, 3, 174.354514),
])
pocket16 = doc.addObject("PartDesign::Pocket", "Pocket015")
body.addObject(pocket16)
pocket16.Profile = sketch18
pocket16.Type = "UpToFirst"

doc.recompute()
